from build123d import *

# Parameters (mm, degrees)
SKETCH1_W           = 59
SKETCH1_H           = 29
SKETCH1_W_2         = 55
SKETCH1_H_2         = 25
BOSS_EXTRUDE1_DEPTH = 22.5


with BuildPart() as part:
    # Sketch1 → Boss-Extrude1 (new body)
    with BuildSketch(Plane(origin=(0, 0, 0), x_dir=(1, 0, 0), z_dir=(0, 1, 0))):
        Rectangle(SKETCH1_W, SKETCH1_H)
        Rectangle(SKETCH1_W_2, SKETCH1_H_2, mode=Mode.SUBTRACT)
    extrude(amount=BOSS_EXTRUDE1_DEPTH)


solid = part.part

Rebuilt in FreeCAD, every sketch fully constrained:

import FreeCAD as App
import Part
import Sketcher
from FreeCAD import Vector


def add_polygon(sketch, points):
    """Adds a closed chain of lines whose ends are joined by coincident constraints."""
    first, n = sketch.GeometryCount, len(points)
    for a, b in zip(points, points[1:] + points[:1]):
        sketch.addGeometry(Part.LineSegment(App.Vector(*a, 0), App.Vector(*b, 0)), False)
    for i in range(n):
        sketch.addConstraint(Sketcher.Constraint("Coincident", first + i, 2, first + (i + 1) % n, 1))

doc = App.newDocument("Part")
params = doc.addObject("Spreadsheet::Sheet", "Params")
for row, (alias, value) in enumerate([
    ("sketch1_width", "59 mm"),
    ("sketch1_width2", "55 mm"),
    ("sketch1_height", "29 mm"),
    ("sketch1_height2", "25 mm"),
    ("pad1_length", "22.5 mm"),
], start=1):
    params.set(f"A{row}", alias)
    params.set(f"B{row}", "=" + value)
    params.setAlias(f"B{row}", alias)

body = doc.addObject("PartDesign::Body", "Body")

# Sketch on XZ plane
sketch1 = body.newObject("Sketcher::SketchObject", "Sketch")
sketch1.AttachmentSupport = (doc.getObject("XZ_Plane"), [""])
sketch1.MapMode = "FlatFace"
add_polygon(sketch1, [(-30, -14), (-30, 14), (30, 14), (30, -14)])  # lines 0-3
add_polygon(sketch1, [(28, 12), (-28, 12), (-28, -12), (28, -12)])  # lines 4-7
sketch1.addConstraint(Sketcher.Constraint("Vertical", 0))
sketch1.addConstraint(Sketcher.Constraint("Horizontal", 1))
sketch1.addConstraint(Sketcher.Constraint("Vertical", 2))
sketch1.addConstraint(Sketcher.Constraint("Horizontal", 3))
sketch1.addConstraint(Sketcher.Constraint("Horizontal", 4))
sketch1.addConstraint(Sketcher.Constraint("Vertical", 5))
sketch1.addConstraint(Sketcher.Constraint("Horizontal", 6))
sketch1.addConstraint(Sketcher.Constraint("Vertical", 7))
sketch1.addConstraint(Sketcher.Constraint("Symmetric", 0, 2, 2, 2, -1, 1))
sketch1.addConstraint(Sketcher.Constraint("Symmetric", 4, 2, 6, 2, -1, 1))
sketch1.addConstraint(Sketcher.Constraint("DistanceX", 1, 1, 1, 2, 59.0))
sketch1.addConstraint(Sketcher.Constraint("DistanceX", 4, 2, 4, 1, 55.0))
sketch1.addConstraint(Sketcher.Constraint("DistanceY", 0, 1, 0, 2, 29.0))
sketch1.addConstraint(Sketcher.Constraint("DistanceY", 5, 2, 5, 1, 25.0))
sketch1.setExpression("Constraints[18]", "Params.sketch1_width")
sketch1.setExpression("Constraints[19]", "Params.sketch1_width2")
sketch1.setExpression("Constraints[20]", "Params.sketch1_height")
sketch1.setExpression("Constraints[21]", "Params.sketch1_height2")
pad1 = body.newObject("PartDesign::Pad", "Pad")
pad1.Profile = sketch1
pad1.setExpression("Length", "Params.pad1_length")
pad1.Reversed = True

doc.recompute()
